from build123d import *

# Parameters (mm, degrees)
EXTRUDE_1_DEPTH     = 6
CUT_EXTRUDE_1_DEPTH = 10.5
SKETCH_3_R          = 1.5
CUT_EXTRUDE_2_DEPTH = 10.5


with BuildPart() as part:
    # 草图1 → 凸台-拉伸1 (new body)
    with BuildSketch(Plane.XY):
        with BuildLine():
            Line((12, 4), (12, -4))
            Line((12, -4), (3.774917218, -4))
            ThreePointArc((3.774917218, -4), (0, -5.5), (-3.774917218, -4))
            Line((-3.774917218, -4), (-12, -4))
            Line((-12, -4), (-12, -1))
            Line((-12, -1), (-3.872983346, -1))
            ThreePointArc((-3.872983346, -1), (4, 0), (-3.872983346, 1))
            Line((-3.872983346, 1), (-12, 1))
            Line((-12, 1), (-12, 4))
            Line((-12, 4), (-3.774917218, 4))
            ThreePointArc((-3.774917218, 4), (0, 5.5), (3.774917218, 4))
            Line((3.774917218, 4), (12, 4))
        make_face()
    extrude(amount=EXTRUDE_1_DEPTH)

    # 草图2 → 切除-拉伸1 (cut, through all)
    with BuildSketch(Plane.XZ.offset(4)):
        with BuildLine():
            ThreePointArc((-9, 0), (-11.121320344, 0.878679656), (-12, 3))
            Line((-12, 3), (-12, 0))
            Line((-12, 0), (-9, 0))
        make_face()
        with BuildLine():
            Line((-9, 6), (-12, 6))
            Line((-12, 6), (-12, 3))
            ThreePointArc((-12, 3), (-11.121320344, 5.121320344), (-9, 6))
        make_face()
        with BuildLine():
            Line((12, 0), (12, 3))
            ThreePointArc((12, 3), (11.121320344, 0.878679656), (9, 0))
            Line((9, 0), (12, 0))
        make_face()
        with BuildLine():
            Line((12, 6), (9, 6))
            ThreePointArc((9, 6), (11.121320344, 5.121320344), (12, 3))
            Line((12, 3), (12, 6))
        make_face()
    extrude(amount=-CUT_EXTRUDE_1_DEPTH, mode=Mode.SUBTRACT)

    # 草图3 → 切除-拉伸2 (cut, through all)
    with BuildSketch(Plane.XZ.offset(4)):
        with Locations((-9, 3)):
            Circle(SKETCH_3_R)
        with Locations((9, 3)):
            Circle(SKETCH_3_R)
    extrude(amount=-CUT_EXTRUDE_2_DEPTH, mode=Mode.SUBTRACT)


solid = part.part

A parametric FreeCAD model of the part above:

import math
import FreeCAD as App
import Part
import Sketcher

doc = App.newDocument("Part")
params = doc.addObject("Spreadsheet::Sheet", "Params")
for row, (alias, value) in enumerate([
    ("sketch1_radius", "4 mm"),
    ("sketch1_radius2", "5.5 mm"),
    ("sketch1_height", "8 mm"),
    ("sketch1_height2", "3 mm"),
    ("pad1_length", "6 mm"),
    ("sketch2_radius", "3 mm"),
    ("sketch3_diameter", "3 mm"),
], start=1):
    params.set(f"A{row}", alias)
    params.set(f"B{row}", "=" + value)
    params.setAlias(f"B{row}", alias)

body = doc.addObject("PartDesign::Body", "Body")

# Sketch on XY plane
sketch1 = body.newObject("Sketcher::SketchObject", "Sketch")
sketch1.AttachmentSupport = (doc.getObject("XY_Plane"), [""])
sketch1.MapMode = "FlatFace"
sketch1.addGeometry(Part.LineSegment(App.Vector(12, -4, 0), App.Vector(12, 4, 0)), False)
sketch1.addGeometry(Part.LineSegment(App.Vector(12, 4, 0), App.Vector(3.774917, 4, 0)), False)
sketch1.addGeometry(Part.ArcOfCircle(Part.Circle(App.Vector(0, 0, 0), App.Vector(0, 0, 1), 5.5), math.radians(46.658242), math.radians(133.341758)), False)
sketch1.addGeometry(Part.LineSegment(App.Vector(-3.774917, 4, 0), App.Vector(-12, 4, 0)), False)
sketch1.addGeometry(Part.LineSegment(App.Vector(-12, 4, 0), App.Vector(-12, 1, 0)), False)
sketch1.addGeometry(Part.LineSegment(App.Vector(-12, 1, 0), App.Vector(-3.872983, 1, 0)), False)
sketch1.addGeometry(Part.ArcOfCircle(Part.Circle(App.Vector(0, 0, 0), App.Vector(0, 0, 1), 4), math.radians(-165.522488), math.radians(165.522488)), False)
sketch1.addGeometry(Part.LineSegment(App.Vector(-3.872983, -1, 0), App.Vector(-12, -1, 0)), False)
sketch1.addGeometry(Part.LineSegment(App.Vector(-12, -1, 0), App.Vector(-12, -4, 0)), False)
sketch1.addGeometry(Part.LineSegment(App.Vector(-12, -4, 0), App.Vector(-3.774917, -4, 0)), False)
sketch1.addGeometry(Part.ArcOfCircle(Part.Circle(App.Vector(0, 0, 0), App.Vector(0, 0, 1), 5.5), math.radians(-133.341758), math.radians(-46.658242)), False)
sketch1.addGeometry(Part.LineSegment(App.Vector(3.774917, -4, 0), App.Vector(12, -4, 0)), False)
sketch1.addConstraint(Sketcher.Constraint("Coincident", 0, 2, 1, 1))
sketch1.addConstraint(Sketcher.Constraint("Coincident", 1, 2, 2, 1))
sketch1.addConstraint(Sketcher.Constraint("Coincident", 2, 2, 3, 1))
sketch1.addConstraint(Sketcher.Constraint("Coincident", 3, 2, 4, 1))
sketch1.addConstraint(Sketcher.Constraint("Coincident", 4, 2, 5, 1))
sketch1.addConstraint(Sketcher.Constraint("Coincident", 5, 2, 6, 2))
sketch1.addConstraint(Sketcher.Constraint("Coincident", 6, 1, 7, 1))
sketch1.addConstraint(Sketcher.Constraint("Coincident", 7, 2, 8, 1))
sketch1.addConstraint(Sketcher.Constraint("Coincident", 8, 2, 9, 1))
sketch1.addConstraint(Sketcher.Constraint("Coincident", 9, 2, 10, 1))
sketch1.addConstraint(Sketcher.Constraint("Coincident", 10, 2, 11, 1))
sketch1.addConstraint(Sketcher.Constraint("Coincident", 11, 2, 0, 1))
sketch1.addConstraint(Sketcher.Constraint("Vertical", 0))
sketch1.addConstraint(Sketcher.Constraint("Horizontal", 1))
sketch1.addConstraint(Sketcher.Constraint("Horizontal", 3))
sketch1.addConstraint(Sketcher.Constraint("Vertical", 4))
sketch1.addConstraint(Sketcher.Constraint("Horizontal", 5))
sketch1.addConstraint(Sketcher.Constraint("Horizontal", 7))
sketch1.addConstraint(Sketcher.Constraint("Vertical", 8))
sketch1.addConstraint(Sketcher.Constraint("Horizontal", 9))
sketch1.addConstraint(Sketcher.Constraint("Horizontal", 11))
sketch1.addConstraint(Sketcher.Constraint("Coincident", 2, 3, -1, 1))
sketch1.addConstraint(Sketcher.Constraint("Coincident", 6, 3, -1, 1))
sketch1.addConstraint(Sketcher.Constraint("Coincident", 10, 3, -1, 1))
sketch1.addConstraint(Sketcher.Constraint("Equal", 2, 10))
sketch1.addConstraint(Sketcher.Constraint("Symmetric", 0, 2, 8, 2, -1, 1))
sketch1.addConstraint(Sketcher.Constraint("Symmetric", 3, 2, 11, 2, -1, 1))
sketch1.addConstraint(Sketcher.Constraint("Horizontal", 1, 2, 2, 2))
sketch1.addConstraint(Sketcher.Constraint("Vertical", 5, 2, 6, 1))
sketch1.addConstraint(Sketcher.Constraint("Radius", 6, 4.0))
sketch1.addConstraint(Sketcher.Constraint("Radius", 2, 5.5))
sketch1.addConstraint(Sketcher.Constraint("DistanceY", 0, 1, 0, 2, 8.0))
sketch1.addConstraint(Sketcher.Constraint("DistanceY", 4, 2, 4, 1, 3.0))
sketch1.addConstraint(Sketcher.Constraint("DistanceX", -1, 1, 0, 2, 12.0))
sketch1.setExpression("Constraints[29]", "Params.sketch1_radius")
sketch1.setExpression("Constraints[30]", "Params.sketch1_radius2")
sketch1.setExpression("Constraints[31]", "Params.sketch1_height")
sketch1.setExpression("Constraints[32]", "Params.sketch1_height2")
pad1 = body.newObject("PartDesign::Pad", "Pad")
pad1.Profile = sketch1
pad1.setExpression("Length", "Params.pad1_length")

# Sketch on XZ plane
sketch2 = body.newObject("Sketcher::SketchObject", "Sketch001")
sketch2.AttachmentSupport = (doc.getObject("XZ_Plane"), [""])
sketch2.MapMode = "FlatFace"
sketch2.AttachmentOffset = App.Placement(App.Vector(0, 0, 4), App.Rotation())
sketch2.addGeometry(Part.ArcOfCircle(Part.Circle(App.Vector(-9, 3, 0), App.Vector(0, 0, 1), 3), math.radians(180), math.radians(270)), False)
sketch2.addGeometry(Part.LineSegment(App.Vector(-12, 3, 0), App.Vector(-12, 0, 0)), False)
sketch2.addGeometry(Part.LineSegment(App.Vector(-12, 0, 0), App.Vector(-9, 0, 0)), False)
sketch2.addGeometry(Part.LineSegment(App.Vector(-9, 6, 0), App.Vector(-12, 6, 0)), False)
sketch2.addGeometry(Part.LineSegment(App.Vector(-12, 6, 0), App.Vector(-12, 3, 0)), False)
sketch2.addGeometry(Part.ArcOfCircle(Part.Circle(App.Vector(-9, 3, 0), App.Vector(0, 0, 1), 3), math.radians(90), math.radians(180)), False)
sketch2.addGeometry(Part.LineSegment(App.Vector(12, 0, 0), App.Vector(12, 3, 0)), False)
sketch2.addGeometry(Part.ArcOfCircle(Part.Circle(App.Vector(9, 3, 0), App.Vector(0, 0, 1), 3), math.radians(-90), math.radians(0)), False)
sketch2.addGeometry(Part.LineSegment(App.Vector(9, 0, 0), App.Vector(12, 0, 0)), False)
sketch2.addGeometry(Part.LineSegment(App.Vector(12, 6, 0), App.Vector(9, 6, 0)), False)
sketch2.addGeometry(Part.ArcOfCircle(Part.Circle(App.Vector(9, 3, 0), App.Vector(0, 0, 1), 3), math.radians(0), math.radians(90)), False)
sketch2.addGeometry(Part.LineSegment(App.Vector(12, 3, 0), App.Vector(12, 6, 0)), False)
sketch2.addConstraint(Sketcher.Constraint("Tangent", 0, 1, 1, 1))
sketch2.addConstraint(Sketcher.Constraint("Coincident", 1, 2, 2, 1))
sketch2.addConstraint(Sketcher.Constraint("Tangent", 2, 2, 0, 2))
sketch2.addConstraint(Sketcher.Constraint("Coincident", 3, 2, 4, 1))
sketch2.addConstraint(Sketcher.Constraint("Tangent", 4, 2, 5, 2))
sketch2.addConstraint(Sketcher.Constraint("Tangent", 5, 1, 3, 1))
sketch2.addConstraint(Sketcher.Constraint("Tangent", 6, 2, 7, 2))
sketch2.addConstraint(Sketcher.Constraint("Tangent", 7, 1, 8, 1))
sketch2.addConstraint(Sketcher.Constraint("Coincident", 8, 2, 6, 1))
sketch2.addConstraint(Sketcher.Constraint("Tangent", 9, 2, 10, 2))
sketch2.addConstraint(Sketcher.Constraint("Tangent", 10, 1, 11, 1))
sketch2.addConstraint(Sketcher.Constraint("Coincident", 11, 2, 9, 1))
sketch2.addConstraint(Sketcher.Constraint("Vertical", 1))
sketch2.addConstraint(Sketcher.Constraint("Horizontal", 2))
sketch2.addConstraint(Sketcher.Constraint("Horizontal", 3))
sketch2.addConstraint(Sketcher.Constraint("Vertical", 4))
sketch2.addConstraint(Sketcher.Constraint("Vertical", 6))
sketch2.addConstraint(Sketcher.Constraint("Horizontal", 8))
sketch2.addConstraint(Sketcher.Constraint("Horizontal", 9))
sketch2.addConstraint(Sketcher.Constraint("Vertical", 11))
sketch2.addConstraint(Sketcher.Constraint("Coincident", 5, 3, 0, 3))
sketch2.addConstraint(Sketcher.Constraint("Coincident", 10, 3, 7, 3))
sketch2.addConstraint(Sketcher.Constraint("Equal", 0, 5))
sketch2.addConstraint(Sketcher.Constraint("Equal", 5, 7))
sketch2.addConstraint(Sketcher.Constraint("Equal", 7, 10))
sketch2.addConstraint(Sketcher.Constraint("Symmetric", 2, 2, 7, 1, -1, 1))
sketch2.addConstraint(Sketcher.Constraint("PointOnObject", 1, 2, -1))
sketch2.addConstraint(Sketcher.Constraint("Radius", 0, 3.0))
sketch2.addConstraint(Sketcher.Constraint("DistanceX", 0, 3, -1, 1, 9.0))
sketch2.setExpression("Constraints[27]", "Params.sketch2_radius")
pocket1 = body.newObject("PartDesign::Pocket", "Pocket")
pocket1.Profile = sketch2
pocket1.Type = "ThroughAll"

# Sketch on XZ plane
sketch3 = body.newObject("Sketcher::SketchObject", "Sketch002")
sketch3.AttachmentSupport = (doc.getObject("XZ_Plane"), [""])
sketch3.MapMode = "FlatFace"
sketch3.AttachmentOffset = App.Placement(App.Vector(0, 0, 4), App.Rotation())
sketch3.addGeometry(Part.Circle(App.Vector(-9, 3, 0), App.Vector(0, 0, 1), 1.5), False)
sketch3.addGeometry(Part.Circle(App.Vector(9, 3, 0), App.Vector(0, 0, 1), 1.5), False)
sketch3.addConstraint(Sketcher.Constraint("Equal", 0, 1))
sketch3.addConstraint(Sketcher.Constraint("Symmetric", 0, 3, 1, 3, -2))
sketch3.addConstraint(Sketcher.Constraint("Diameter", 0, 3.0))
sketch3.addConstraint(Sketcher.Constraint("DistanceX", 0, 3, -1, 1, 9.0))
sketch3.addConstraint(Sketcher.Constraint("DistanceY", -1, 1, 0, 3, 3.0))
sketch3.setExpression("Constraints[2]", "Params.sketch3_diameter")
pocket2 = body.newObject("PartDesign::Pocket", "Pocket001")
pocket2.Profile = sketch3
pocket2.Type = "ThroughAll"

doc.recompute()
